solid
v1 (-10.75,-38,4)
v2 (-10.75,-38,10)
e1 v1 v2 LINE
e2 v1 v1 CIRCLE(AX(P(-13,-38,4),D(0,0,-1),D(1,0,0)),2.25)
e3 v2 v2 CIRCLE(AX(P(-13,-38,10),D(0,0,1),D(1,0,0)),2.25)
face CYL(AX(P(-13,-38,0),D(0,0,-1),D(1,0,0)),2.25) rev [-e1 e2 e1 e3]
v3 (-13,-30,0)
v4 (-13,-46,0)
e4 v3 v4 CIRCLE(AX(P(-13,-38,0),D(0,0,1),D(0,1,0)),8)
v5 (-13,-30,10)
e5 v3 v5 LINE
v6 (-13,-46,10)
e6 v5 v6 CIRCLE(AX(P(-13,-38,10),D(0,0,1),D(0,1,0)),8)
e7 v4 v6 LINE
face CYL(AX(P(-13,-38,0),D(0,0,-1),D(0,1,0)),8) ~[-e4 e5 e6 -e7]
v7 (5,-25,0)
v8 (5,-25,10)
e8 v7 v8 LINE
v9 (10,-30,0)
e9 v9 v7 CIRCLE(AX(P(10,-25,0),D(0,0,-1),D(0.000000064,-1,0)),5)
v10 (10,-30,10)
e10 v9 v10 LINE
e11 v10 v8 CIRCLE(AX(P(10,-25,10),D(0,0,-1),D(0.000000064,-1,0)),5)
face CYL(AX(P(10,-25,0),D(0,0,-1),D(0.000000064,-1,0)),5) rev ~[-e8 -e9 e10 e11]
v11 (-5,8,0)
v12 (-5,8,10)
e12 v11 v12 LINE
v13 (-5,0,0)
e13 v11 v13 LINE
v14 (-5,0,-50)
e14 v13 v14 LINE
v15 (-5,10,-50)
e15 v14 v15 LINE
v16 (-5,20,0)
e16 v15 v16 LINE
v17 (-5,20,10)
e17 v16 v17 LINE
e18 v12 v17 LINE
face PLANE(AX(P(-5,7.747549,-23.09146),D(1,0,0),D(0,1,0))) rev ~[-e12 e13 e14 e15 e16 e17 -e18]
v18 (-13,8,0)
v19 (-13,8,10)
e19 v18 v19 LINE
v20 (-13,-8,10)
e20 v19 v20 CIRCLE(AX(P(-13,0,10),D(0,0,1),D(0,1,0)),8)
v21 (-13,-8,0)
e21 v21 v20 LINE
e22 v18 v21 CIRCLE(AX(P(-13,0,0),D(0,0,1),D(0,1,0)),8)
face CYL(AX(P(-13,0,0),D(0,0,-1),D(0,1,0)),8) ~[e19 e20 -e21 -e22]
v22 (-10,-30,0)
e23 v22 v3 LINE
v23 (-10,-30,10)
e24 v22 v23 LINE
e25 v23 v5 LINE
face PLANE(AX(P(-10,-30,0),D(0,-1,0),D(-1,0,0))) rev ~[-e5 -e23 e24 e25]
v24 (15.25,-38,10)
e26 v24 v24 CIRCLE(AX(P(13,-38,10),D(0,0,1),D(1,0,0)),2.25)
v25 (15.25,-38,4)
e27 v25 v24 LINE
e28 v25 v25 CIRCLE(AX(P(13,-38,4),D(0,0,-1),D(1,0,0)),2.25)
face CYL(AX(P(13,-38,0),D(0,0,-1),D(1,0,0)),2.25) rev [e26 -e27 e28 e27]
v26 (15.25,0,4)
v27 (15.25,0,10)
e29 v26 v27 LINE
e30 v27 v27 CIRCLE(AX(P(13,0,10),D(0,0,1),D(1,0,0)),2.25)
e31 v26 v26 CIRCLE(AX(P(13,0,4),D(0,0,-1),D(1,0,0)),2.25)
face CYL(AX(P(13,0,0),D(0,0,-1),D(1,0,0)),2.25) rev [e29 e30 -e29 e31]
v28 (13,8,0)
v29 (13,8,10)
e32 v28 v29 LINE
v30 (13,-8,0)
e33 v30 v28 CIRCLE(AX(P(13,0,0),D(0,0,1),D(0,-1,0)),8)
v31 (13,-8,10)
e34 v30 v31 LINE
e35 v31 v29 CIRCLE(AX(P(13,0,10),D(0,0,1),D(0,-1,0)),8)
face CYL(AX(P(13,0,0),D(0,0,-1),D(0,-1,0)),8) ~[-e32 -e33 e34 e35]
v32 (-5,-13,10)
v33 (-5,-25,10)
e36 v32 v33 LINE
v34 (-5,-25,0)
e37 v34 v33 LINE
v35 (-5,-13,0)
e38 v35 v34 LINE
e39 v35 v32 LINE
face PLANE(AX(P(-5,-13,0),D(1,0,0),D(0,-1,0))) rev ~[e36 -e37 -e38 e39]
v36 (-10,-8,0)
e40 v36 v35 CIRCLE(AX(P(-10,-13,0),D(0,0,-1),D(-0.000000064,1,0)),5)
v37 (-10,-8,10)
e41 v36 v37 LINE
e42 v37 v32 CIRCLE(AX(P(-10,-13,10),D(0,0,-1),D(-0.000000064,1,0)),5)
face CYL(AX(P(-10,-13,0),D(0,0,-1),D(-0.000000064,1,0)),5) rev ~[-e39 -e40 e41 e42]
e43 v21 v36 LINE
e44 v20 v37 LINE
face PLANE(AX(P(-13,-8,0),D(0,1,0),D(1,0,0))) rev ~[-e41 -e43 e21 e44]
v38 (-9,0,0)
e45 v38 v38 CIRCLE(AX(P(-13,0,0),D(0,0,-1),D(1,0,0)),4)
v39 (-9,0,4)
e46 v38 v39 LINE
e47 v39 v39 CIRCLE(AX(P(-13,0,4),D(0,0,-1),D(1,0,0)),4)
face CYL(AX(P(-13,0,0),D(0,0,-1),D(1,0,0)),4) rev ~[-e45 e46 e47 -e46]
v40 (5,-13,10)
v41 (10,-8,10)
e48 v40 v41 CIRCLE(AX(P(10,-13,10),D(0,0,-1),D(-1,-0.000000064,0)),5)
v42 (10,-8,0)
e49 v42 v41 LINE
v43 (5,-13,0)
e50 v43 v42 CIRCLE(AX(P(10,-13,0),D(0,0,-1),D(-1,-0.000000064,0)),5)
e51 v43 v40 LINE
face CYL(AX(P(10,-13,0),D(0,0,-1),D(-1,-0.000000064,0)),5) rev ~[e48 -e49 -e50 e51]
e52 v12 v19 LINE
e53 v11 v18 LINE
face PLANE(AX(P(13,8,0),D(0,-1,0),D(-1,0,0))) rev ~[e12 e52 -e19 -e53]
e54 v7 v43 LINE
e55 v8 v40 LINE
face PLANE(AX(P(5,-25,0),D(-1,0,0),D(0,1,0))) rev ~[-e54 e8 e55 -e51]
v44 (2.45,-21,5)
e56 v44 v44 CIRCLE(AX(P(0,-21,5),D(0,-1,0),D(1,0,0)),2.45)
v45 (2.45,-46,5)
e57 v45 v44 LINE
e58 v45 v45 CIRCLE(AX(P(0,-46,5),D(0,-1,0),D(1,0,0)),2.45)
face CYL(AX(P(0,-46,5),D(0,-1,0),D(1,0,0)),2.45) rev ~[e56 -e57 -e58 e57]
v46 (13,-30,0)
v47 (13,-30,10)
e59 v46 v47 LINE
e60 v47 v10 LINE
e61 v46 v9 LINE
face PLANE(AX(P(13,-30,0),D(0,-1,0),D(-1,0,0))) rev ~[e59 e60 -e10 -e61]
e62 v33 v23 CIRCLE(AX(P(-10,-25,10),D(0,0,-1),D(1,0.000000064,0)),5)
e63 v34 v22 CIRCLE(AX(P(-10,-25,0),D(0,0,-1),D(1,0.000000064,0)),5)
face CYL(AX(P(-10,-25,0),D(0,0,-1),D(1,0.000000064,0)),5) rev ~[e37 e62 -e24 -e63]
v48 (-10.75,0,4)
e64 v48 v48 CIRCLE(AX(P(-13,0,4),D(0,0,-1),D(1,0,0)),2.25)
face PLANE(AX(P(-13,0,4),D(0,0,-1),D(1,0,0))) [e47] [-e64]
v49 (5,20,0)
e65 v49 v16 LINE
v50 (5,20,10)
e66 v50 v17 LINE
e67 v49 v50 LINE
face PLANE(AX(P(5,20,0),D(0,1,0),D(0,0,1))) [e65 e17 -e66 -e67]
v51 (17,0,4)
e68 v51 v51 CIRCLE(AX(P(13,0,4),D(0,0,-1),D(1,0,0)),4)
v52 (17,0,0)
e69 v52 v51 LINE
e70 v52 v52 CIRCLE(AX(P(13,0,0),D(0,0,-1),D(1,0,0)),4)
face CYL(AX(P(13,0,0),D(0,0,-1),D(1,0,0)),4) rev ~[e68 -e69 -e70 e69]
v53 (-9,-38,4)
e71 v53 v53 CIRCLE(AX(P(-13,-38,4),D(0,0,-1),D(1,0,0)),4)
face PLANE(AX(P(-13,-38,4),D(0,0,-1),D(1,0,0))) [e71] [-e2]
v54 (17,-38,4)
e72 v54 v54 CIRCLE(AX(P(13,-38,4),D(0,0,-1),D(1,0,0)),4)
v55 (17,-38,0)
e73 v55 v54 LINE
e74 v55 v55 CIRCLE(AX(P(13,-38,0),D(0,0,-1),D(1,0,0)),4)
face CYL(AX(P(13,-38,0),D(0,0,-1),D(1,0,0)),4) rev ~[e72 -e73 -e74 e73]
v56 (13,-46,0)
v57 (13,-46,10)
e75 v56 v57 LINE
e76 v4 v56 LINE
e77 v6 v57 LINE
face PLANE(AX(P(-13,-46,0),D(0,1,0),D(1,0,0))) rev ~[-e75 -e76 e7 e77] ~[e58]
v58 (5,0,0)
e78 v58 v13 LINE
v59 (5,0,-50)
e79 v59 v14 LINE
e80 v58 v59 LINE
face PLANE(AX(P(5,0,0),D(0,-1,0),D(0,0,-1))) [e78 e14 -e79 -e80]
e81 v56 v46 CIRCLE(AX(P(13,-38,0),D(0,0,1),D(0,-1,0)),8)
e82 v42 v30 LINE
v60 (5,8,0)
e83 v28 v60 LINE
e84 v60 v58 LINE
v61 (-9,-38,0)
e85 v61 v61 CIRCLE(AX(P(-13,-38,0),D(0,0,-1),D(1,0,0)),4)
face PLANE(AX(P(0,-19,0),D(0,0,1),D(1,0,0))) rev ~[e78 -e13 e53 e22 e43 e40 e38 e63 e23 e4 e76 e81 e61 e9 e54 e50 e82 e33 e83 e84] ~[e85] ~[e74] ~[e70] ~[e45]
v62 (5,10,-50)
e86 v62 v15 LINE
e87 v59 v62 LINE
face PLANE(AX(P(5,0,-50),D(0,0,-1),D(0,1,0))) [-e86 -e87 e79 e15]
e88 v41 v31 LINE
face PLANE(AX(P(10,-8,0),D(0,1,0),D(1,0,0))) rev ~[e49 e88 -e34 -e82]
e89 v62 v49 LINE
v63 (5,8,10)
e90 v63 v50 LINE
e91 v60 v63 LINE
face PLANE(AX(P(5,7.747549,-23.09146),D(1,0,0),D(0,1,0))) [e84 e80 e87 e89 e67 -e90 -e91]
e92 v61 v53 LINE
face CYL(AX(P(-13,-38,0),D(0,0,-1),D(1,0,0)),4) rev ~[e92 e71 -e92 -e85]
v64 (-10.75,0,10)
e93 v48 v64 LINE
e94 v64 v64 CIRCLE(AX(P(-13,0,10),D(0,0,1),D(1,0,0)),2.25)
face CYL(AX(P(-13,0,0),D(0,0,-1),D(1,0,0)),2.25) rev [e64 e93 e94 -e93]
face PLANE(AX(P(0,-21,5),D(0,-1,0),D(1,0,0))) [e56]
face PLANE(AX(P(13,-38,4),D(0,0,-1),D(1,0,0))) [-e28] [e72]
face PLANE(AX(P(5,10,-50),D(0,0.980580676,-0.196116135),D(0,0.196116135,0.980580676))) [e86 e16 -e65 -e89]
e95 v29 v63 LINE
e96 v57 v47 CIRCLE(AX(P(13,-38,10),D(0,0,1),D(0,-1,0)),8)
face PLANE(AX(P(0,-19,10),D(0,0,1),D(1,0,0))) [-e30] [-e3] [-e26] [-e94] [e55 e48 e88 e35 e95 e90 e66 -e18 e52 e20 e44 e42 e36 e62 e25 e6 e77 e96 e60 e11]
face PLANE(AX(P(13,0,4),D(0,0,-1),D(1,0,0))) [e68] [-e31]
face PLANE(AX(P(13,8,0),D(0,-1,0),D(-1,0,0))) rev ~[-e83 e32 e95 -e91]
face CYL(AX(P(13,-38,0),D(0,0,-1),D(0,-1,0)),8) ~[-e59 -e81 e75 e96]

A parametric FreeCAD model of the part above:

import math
import FreeCAD as App
import Part
import Sketcher
Q = App.Units.Quantity


def add_polygon(sketch, points):
    """Adds a closed chain of lines whose ends are joined by coincident constraints."""
    first, n = sketch.GeometryCount, len(points)
    for a, b in zip(points, points[1:] + points[:1]):
        sketch.addGeometry(Part.LineSegment(App.Vector(*a, 0), App.Vector(*b, 0)), False)
    for i in range(n):
        sketch.addConstraint(Sketcher.Constraint("Coincident", first + i, 2, first + (i + 1) % n, 1))

doc = App.newDocument("Part")
body = doc.addObject("PartDesign::Body", "Body")

# Sketch on XY plane
sketch1 = doc.addObject("Sketcher::SketchObject", "Sketch")
body.addObject(sketch1)
sketch1.AttachmentSupport = (doc.XY_Plane, [""])
sketch1.MapMode = "FlatFace"
sketch1.addGeometry(Part.LineSegment(App.Vector(13, 8, 0), App.Vector(-13, 8, 0)), False)
sketch1.addGeometry(Part.ArcOfCircle(Part.Circle(App.Vector(-13, 0, 0), App.Vector(0, 0, 1), 8), math.radians(90), math.radians(270)), False)
sketch1.addGeometry(Part.LineSegment(App.Vector(-13, -8, 0), App.Vector(-10, -8, 0)), False)
sketch1.addGeometry(Part.ArcOfCircle(Part.Circle(App.Vector(-10, -13, 0), App.Vector(0, 0, 1), 5), math.radians(0), math.radians(90)), False)
sketch1.addGeometry(Part.LineSegment(App.Vector(-5, -13, 0), App.Vector(-5, -25, 0)), False)
sketch1.addGeometry(Part.ArcOfCircle(Part.Circle(App.Vector(-10, -25, 0), App.Vector(0, 0, 1), 5), math.radians(-90), math.radians(0)), False)
sketch1.addGeometry(Part.LineSegment(App.Vector(-10, -30, 0), App.Vector(-13, -30, 0)), False)
sketch1.addGeometry(Part.ArcOfCircle(Part.Circle(App.Vector(-13, -38, 0), App.Vector(0, 0, 1), 8), math.radians(90), math.radians(270)), False)
sketch1.addGeometry(Part.LineSegment(App.Vector(-13, -46, 0), App.Vector(13, -46, 0)), False)
sketch1.addGeometry(Part.ArcOfCircle(Part.Circle(App.Vector(13, -38, 0), App.Vector(0, 0, 1), 8), math.radians(-90), math.radians(90)), False)
sketch1.addGeometry(Part.LineSegment(App.Vector(13, -30, 0), App.Vector(10, -30, 0)), False)
sketch1.addGeometry(Part.ArcOfCircle(Part.Circle(App.Vector(10, -25, 0), App.Vector(0, 0, 1), 5), math.radians(180), math.radians(270)), False)
sketch1.addGeometry(Part.LineSegment(App.Vector(5, -25, 0), App.Vector(5, -13, 0)), False)
sketch1.addGeometry(Part.ArcOfCircle(Part.Circle(App.Vector(10, -13, 0), App.Vector(0, 0, 1), 5), math.radians(90), math.radians(180)), False)
sketch1.addGeometry(Part.LineSegment(App.Vector(10, -8, 0), App.Vector(13, -8, 0)), False)
sketch1.addGeometry(Part.ArcOfCircle(Part.Circle(App.Vector(13, 0, 0), App.Vector(0, 0, 1), 8), math.radians(-90), math.radians(90)), False)
sketch1.addGeometry(Part.Circle(App.Vector(-13, -38, 0), App.Vector(0, 0, 1), 2.2), False)
sketch1.addGeometry(Part.Circle(App.Vector(13, -38, 0), App.Vector(0, 0, 1), 2.2), False)
sketch1.addGeometry(Part.Circle(App.Vector(-13, 0, 0), App.Vector(0, 0, 1), 2.2), False)
sketch1.addGeometry(Part.Circle(App.Vector(13, 0, 0), App.Vector(0, 0, 1), 2.2), False)
sketch1.addConstraint(Sketcher.Constraint("Tangent", 0, 2, 1, 1))
sketch1.addConstraint(Sketcher.Constraint("Tangent", 1, 2, 2, 1))
sketch1.addConstraint(Sketcher.Constraint("Tangent", 2, 2, 3, 2))
sketch1.addConstraint(Sketcher.Constraint("Tangent", 3, 1, 4, 1))
sketch1.addConstraint(Sketcher.Constraint("Tangent", 4, 2, 5, 2))
sketch1.addConstraint(Sketcher.Constraint("Tangent", 5, 1, 6, 1))
sketch1.addConstraint(Sketcher.Constraint("Tangent", 6, 2, 7, 1))
sketch1.addConstraint(Sketcher.Constraint("Tangent", 7, 2, 8, 1))
sketch1.addConstraint(Sketcher.Constraint("Tangent", 8, 2, 9, 1))
sketch1.addConstraint(Sketcher.Constraint("Tangent", 9, 2, 10, 1))
sketch1.addConstraint(Sketcher.Constraint("Tangent", 10, 2, 11, 2))
sketch1.addConstraint(Sketcher.Constraint("Tangent", 11, 1, 12, 1))
sketch1.addConstraint(Sketcher.Constraint("Tangent", 12, 2, 13, 2))
sketch1.addConstraint(Sketcher.Constraint("Tangent", 13, 1, 14, 1))
sketch1.addConstraint(Sketcher.Constraint("Tangent", 14, 2, 15, 1))
sketch1.addConstraint(Sketcher.Constraint("Tangent", 15, 2, 0, 1))
sketch1.addConstraint(Sketcher.Constraint("Horizontal", 0))
sketch1.addConstraint(Sketcher.Constraint("Horizontal", 2))
sketch1.addConstraint(Sketcher.Constraint("Vertical", 4))
sketch1.addConstraint(Sketcher.Constraint("Horizontal", 6))
sketch1.addConstraint(Sketcher.Constraint("Horizontal", 8))
sketch1.addConstraint(Sketcher.Constraint("Horizontal", 10))
sketch1.addConstraint(Sketcher.Constraint("Vertical", 12))
sketch1.addConstraint(Sketcher.Constraint("Horizontal", 14))
sketch1.addConstraint(Sketcher.Constraint("Coincident", 16, 3, 7, 3))
sketch1.addConstraint(Sketcher.Constraint("Coincident", 17, 3, 9, 3))
sketch1.addConstraint(Sketcher.Constraint("Coincident", 18, 3, 1, 3))
sketch1.addConstraint(Sketcher.Constraint("Coincident", 19, 3, 15, 3))
sketch1.addConstraint(Sketcher.Constraint("Equal", 3, 5))
sketch1.addConstraint(Sketcher.Constraint("Equal", 1, 7))
sketch1.addConstraint(Sketcher.Constraint("Equal", 7, 9))
sketch1.addConstraint(Sketcher.Constraint("Equal", 5, 11))
sketch1.addConstraint(Sketcher.Constraint("Equal", 11, 13))
sketch1.addConstraint(Sketcher.Constraint("Equal", 9, 15))
sketch1.addConstraint(Sketcher.Constraint("Equal", 16, 17))
sketch1.addConstraint(Sketcher.Constraint("Equal", 17, 18))
sketch1.addConstraint(Sketcher.Constraint("Equal", 18, 19))
sketch1.addConstraint(Sketcher.Constraint("Symmetric", 1, 3, 15, 3, -1, 1))
sketch1.addConstraint(Sketcher.Constraint("Vertical", 1, 3, 7, 3))
sketch1.addConstraint(Sketcher.Constraint("Vertical", 9, 3, 15, 3))
sketch1.addConstraint(Sketcher.Constraint("Equal", 6, 10))
sketch1.addConstraint(Sketcher.Constraint("Radius", 1, Q("8 mm")))
sketch1.addConstraint(Sketcher.Constraint("Radius", 3, Q("5 mm")))
sketch1.addConstraint(Sketcher.Constraint("Diameter", 16, Q("4.5 mm")))
sketch1.addConstraint(Sketcher.Constraint("DistanceX", 0, 2, 0, 1, Q("26 mm")))
sketch1.addConstraint(Sketcher.Constraint("DistanceX", 2, 1, 2, 2, Q("3 mm")))
sketch1.addConstraint(Sketcher.Constraint("DistanceY", 4, 2, 4, 1, Q("12 mm")))
pad1 = doc.addObject("PartDesign::Pad", "Pad")
body.addObject(pad1)
pad1.Profile = sketch1
pad1.Length = 10

# Sketch on YZ plane
sketch2 = doc.addObject("Sketcher::SketchObject", "Sketch001")
body.addObject(sketch2)
sketch2.AttachmentSupport = (doc.YZ_Plane, [""])
sketch2.MapMode = "FlatFace"
sketch2.AttachmentOffset = App.Placement(App.Vector(0, 0, 5), App.Rotation())
add_polygon(sketch2, [(0, 0), (0, -50), (10, -50), (20, 0), (20, 10), (8, 10), (8, 0)])  # lines 0-6
sketch2.addConstraint(Sketcher.Constraint("Vertical", 0))
sketch2.addConstraint(Sketcher.Constraint("Horizontal", 1))
sketch2.addConstraint(Sketcher.Constraint("Vertical", 3))
sketch2.addConstraint(Sketcher.Constraint("Horizontal", 4))
sketch2.addConstraint(Sketcher.Constraint("Vertical", 5))
sketch2.addConstraint(Sketcher.Constraint("Horizontal", 6))
sketch2.addConstraint(Sketcher.Constraint("Coincident", 6, 2, -1, 1))
sketch2.addConstraint(Sketcher.Constraint("PointOnObject", 2, 2, -1))
sketch2.addConstraint(Sketcher.Constraint("Equal", 1, 3))
sketch2.addConstraint(Sketcher.Constraint("DistanceX", 1, 1, 1, 2, Q("10 mm")))
sketch2.addConstraint(Sketcher.Constraint("DistanceX", 4, 2, 4, 1, Q("12 mm")))
sketch2.addConstraint(Sketcher.Constraint("DistanceX", 6, 2, 6, 1, Q("8 mm")))
sketch2.addConstraint(Sketcher.Constraint("DistanceY", 0, 2, 0, 1, Q("50 mm")))
pad2 = doc.addObject("PartDesign::Pad", "Pad001")
body.addObject(pad2)
pad2.Profile = sketch2
pad2.Length = 10
pad2.Reversed = True

# Sketch on XZ plane
sketch3 = doc.addObject("Sketcher::SketchObject", "Sketch002")
body.addObject(sketch3)
sketch3.AttachmentSupport = (doc.XZ_Plane, [""])
sketch3.MapMode = "FlatFace"
sketch3.AttachmentOffset = App.Placement(App.Vector(0, 0, 46), App.Rotation())
sketch3.addGeometry(Part.Circle(App.Vector(0, 5, 0), App.Vector(0, 0, 1), 2.5), False)
sketch3.addConstraint(Sketcher.Constraint("PointOnObject", 0, 3, -2))
sketch3.addConstraint(Sketcher.Constraint("Diameter", 0, Q("4.9 mm")))
sketch3.addConstraint(Sketcher.Constraint("DistanceY", -1, 1, 0, 3, Q("5 mm")))
pocket1 = doc.addObject("PartDesign::Pocket", "Pocket")
body.addObject(pocket1)
pocket1.Profile = sketch3
pocket1.Length = 25

# Sketch on XY plane
sketch4 = doc.addObject("Sketcher::SketchObject", "Sketch003")
body.addObject(sketch4)
sketch4.AttachmentSupport = (doc.XY_Plane, [""])
sketch4.MapMode = "FlatFace"
sketch4.addGeometry(Part.Circle(App.Vector(13, 0, 0), App.Vector(0, 0, 1), 4), False)
sketch4.addGeometry(Part.Circle(App.Vector(-13, 0, 0), App.Vector(0, 0, 1), 4), False)
sketch4.addGeometry(Part.Circle(App.Vector(-13, -38, 0), App.Vector(0, 0, 1), 4), False)
sketch4.addGeometry(Part.Circle(App.Vector(13, -38, 0), App.Vector(0, 0, 1), 4), False)
sketch4.addConstraint(Sketcher.Constraint("Equal", 0, 1))
sketch4.addConstraint(Sketcher.Constraint("Equal", 1, 2))
sketch4.addConstraint(Sketcher.Constraint("Equal", 2, 3))
sketch4.addConstraint(Sketcher.Constraint("Symmetric", 0, 3, 1, 3, -1, 1))
sketch4.addConstraint(Sketcher.Constraint("Symmetric", 2, 3, 3, 3, -2))
sketch4.addConstraint(Sketcher.Constraint("PointOnObject", 0, 3, -1))
sketch4.addConstraint(Sketcher.Constraint("Vertical", 1, 3, 2, 3))
sketch4.addConstraint(Sketcher.Constraint("Diameter", 0, Q("8 mm")))
sketch4.addConstraint(Sketcher.Constraint("DistanceX", -1, 1, 0, 3, Q("13 mm")))
sketch4.addConstraint(Sketcher.Constraint("DistanceY", 2, 3, -1, 1, Q("38 mm")))
pocket2 = doc.addObject("PartDesign::Pocket", "Pocket001")
body.addObject(pocket2)
pocket2.Profile = sketch4
pocket2.Length = 4
pocket2.Reversed = True

doc.recompute()
